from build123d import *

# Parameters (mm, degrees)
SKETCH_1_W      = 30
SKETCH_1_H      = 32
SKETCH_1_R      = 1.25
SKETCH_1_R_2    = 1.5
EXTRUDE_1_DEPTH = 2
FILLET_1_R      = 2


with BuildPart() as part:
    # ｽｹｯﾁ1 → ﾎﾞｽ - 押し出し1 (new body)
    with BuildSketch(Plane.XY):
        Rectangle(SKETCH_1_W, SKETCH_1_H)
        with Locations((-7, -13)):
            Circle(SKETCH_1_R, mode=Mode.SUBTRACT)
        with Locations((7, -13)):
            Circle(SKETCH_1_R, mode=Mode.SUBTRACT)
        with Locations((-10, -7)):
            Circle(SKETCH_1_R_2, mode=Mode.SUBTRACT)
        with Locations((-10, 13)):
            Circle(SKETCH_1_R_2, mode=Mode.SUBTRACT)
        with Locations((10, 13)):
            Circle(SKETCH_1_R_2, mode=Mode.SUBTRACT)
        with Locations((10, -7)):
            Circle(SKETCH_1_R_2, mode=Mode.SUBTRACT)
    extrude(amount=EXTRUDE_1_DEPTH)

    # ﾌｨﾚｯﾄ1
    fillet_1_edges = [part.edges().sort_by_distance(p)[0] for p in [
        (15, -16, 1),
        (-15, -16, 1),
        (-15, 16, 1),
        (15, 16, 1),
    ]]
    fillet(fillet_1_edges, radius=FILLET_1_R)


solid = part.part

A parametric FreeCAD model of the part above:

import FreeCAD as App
import Part
import Sketcher
from FreeCAD import Vector


def edges_at(feature, points):
    """Names of the edges that pass closest to the given points."""
    edges = feature.Shape.Edges
    near = lambda p: min(range(len(edges)), key=lambda i: edges[i].distToShape(Part.Vertex(*p))[0])
    return sorted({f"Edge{near(p) + 1}" for p in points})

doc = App.newDocument("Part")
body = doc.addObject("PartDesign::Body", "Body")

# Sketch on XY plane
sketch1 = body.newObject("Sketcher::SketchObject", "Sketch")
sketch1.AttachmentSupport = (doc.getObject("XY_Plane"), [""])
sketch1.MapMode = "FlatFace"
sketch1.addGeometry([
    Part.LineSegment(Vector(-15, 16, 0), Vector(-15, -16, 0)),  # 0
    Part.LineSegment(Vector(-15, -16, 0), Vector(15, -16, 0)),  # 1
    Part.LineSegment(Vector(15, -16, 0), Vector(15, 16, 0)),  # 2
    Part.LineSegment(Vector(15, 16, 0), Vector(-15, 16, 0)),  # 3
    Part.Circle(Vector(-7, -13, 0), Vector(0, 0, 1), 1.2),  # 4
    Part.Circle(Vector(-10, -7, 0), Vector(0, 0, 1), 1.5),  # 5
    Part.Circle(Vector(7, -13, 0), Vector(0, 0, 1), 1.2),  # 6
    Part.Circle(Vector(10, -7, 0), Vector(0, 0, 1), 1.5),  # 7
    Part.Circle(Vector(-10, 13, 0), Vector(0, 0, 1), 1.5),  # 8
    Part.Circle(Vector(10, 13, 0), Vector(0, 0, 1), 1.5),  # 9
], False)
sketch1.addConstraint([
    Sketcher.Constraint("Coincident", 0, 2, 1, 1),
    Sketcher.Constraint("Coincident", 1, 2, 2, 1),
    Sketcher.Constraint("Coincident", 2, 2, 3, 1),
    Sketcher.Constraint("Coincident", 3, 2, 0, 1),
    Sketcher.Constraint("Vertical", 0),
    Sketcher.Constraint("Horizontal", 1),
    Sketcher.Constraint("Vertical", 2),
    Sketcher.Constraint("Horizontal", 3),
    Sketcher.Constraint("Equal", 4, 6),
    Sketcher.Constraint("Equal", 5, 7),
    Sketcher.Constraint("Equal", 7, 8),
    Sketcher.Constraint("Equal", 8, 9),
    Sketcher.Constraint("Symmetric", 0, 2, 2, 2, -1, 1),
    Sketcher.Constraint("Symmetric", 4, 3, 6, 3, -2),
    Sketcher.Constraint("Symmetric", 5, 3, 7, 3, -2),
    Sketcher.Constraint("Symmetric", 8, 3, 9, 3, -2),
    Sketcher.Constraint("Vertical", 5, 3, 8, 3),
    Sketcher.Constraint("Diameter", 5, 3.0),
    Sketcher.Constraint("Diameter", 4, 2.5),
    Sketcher.Constraint("DistanceX", 1, 1, 1, 2, 30.0),
    Sketcher.Constraint("DistanceY", 0, 2, 0, 1, 32.0),
    Sketcher.Constraint("DistanceX", 4, 3, -1, 1, 7.0),
    Sketcher.Constraint("DistanceY", 4, 3, -1, 1, 13.0),
    Sketcher.Constraint("DistanceX", 5, 3, -1, 1, 10.0),
    Sketcher.Constraint("DistanceY", 5, 3, -1, 1, 7.0),
    Sketcher.Constraint("DistanceY", -1, 1, 8, 3, 13.0),
])
pad1 = body.newObject("PartDesign::Pad", "Pad")
pad1.Profile = sketch1
pad1.Length = 2
doc.recompute()

fillet = body.newObject("PartDesign::Fillet", "Fillet")
fillet.Base = (pad1, edges_at(pad1, [
    (15, -16, 1),
    (-15, -16, 1),
    (-15, 16, 1),
    (15, 16, 1),
]))
fillet.Radius = 2

doc.recompute()
